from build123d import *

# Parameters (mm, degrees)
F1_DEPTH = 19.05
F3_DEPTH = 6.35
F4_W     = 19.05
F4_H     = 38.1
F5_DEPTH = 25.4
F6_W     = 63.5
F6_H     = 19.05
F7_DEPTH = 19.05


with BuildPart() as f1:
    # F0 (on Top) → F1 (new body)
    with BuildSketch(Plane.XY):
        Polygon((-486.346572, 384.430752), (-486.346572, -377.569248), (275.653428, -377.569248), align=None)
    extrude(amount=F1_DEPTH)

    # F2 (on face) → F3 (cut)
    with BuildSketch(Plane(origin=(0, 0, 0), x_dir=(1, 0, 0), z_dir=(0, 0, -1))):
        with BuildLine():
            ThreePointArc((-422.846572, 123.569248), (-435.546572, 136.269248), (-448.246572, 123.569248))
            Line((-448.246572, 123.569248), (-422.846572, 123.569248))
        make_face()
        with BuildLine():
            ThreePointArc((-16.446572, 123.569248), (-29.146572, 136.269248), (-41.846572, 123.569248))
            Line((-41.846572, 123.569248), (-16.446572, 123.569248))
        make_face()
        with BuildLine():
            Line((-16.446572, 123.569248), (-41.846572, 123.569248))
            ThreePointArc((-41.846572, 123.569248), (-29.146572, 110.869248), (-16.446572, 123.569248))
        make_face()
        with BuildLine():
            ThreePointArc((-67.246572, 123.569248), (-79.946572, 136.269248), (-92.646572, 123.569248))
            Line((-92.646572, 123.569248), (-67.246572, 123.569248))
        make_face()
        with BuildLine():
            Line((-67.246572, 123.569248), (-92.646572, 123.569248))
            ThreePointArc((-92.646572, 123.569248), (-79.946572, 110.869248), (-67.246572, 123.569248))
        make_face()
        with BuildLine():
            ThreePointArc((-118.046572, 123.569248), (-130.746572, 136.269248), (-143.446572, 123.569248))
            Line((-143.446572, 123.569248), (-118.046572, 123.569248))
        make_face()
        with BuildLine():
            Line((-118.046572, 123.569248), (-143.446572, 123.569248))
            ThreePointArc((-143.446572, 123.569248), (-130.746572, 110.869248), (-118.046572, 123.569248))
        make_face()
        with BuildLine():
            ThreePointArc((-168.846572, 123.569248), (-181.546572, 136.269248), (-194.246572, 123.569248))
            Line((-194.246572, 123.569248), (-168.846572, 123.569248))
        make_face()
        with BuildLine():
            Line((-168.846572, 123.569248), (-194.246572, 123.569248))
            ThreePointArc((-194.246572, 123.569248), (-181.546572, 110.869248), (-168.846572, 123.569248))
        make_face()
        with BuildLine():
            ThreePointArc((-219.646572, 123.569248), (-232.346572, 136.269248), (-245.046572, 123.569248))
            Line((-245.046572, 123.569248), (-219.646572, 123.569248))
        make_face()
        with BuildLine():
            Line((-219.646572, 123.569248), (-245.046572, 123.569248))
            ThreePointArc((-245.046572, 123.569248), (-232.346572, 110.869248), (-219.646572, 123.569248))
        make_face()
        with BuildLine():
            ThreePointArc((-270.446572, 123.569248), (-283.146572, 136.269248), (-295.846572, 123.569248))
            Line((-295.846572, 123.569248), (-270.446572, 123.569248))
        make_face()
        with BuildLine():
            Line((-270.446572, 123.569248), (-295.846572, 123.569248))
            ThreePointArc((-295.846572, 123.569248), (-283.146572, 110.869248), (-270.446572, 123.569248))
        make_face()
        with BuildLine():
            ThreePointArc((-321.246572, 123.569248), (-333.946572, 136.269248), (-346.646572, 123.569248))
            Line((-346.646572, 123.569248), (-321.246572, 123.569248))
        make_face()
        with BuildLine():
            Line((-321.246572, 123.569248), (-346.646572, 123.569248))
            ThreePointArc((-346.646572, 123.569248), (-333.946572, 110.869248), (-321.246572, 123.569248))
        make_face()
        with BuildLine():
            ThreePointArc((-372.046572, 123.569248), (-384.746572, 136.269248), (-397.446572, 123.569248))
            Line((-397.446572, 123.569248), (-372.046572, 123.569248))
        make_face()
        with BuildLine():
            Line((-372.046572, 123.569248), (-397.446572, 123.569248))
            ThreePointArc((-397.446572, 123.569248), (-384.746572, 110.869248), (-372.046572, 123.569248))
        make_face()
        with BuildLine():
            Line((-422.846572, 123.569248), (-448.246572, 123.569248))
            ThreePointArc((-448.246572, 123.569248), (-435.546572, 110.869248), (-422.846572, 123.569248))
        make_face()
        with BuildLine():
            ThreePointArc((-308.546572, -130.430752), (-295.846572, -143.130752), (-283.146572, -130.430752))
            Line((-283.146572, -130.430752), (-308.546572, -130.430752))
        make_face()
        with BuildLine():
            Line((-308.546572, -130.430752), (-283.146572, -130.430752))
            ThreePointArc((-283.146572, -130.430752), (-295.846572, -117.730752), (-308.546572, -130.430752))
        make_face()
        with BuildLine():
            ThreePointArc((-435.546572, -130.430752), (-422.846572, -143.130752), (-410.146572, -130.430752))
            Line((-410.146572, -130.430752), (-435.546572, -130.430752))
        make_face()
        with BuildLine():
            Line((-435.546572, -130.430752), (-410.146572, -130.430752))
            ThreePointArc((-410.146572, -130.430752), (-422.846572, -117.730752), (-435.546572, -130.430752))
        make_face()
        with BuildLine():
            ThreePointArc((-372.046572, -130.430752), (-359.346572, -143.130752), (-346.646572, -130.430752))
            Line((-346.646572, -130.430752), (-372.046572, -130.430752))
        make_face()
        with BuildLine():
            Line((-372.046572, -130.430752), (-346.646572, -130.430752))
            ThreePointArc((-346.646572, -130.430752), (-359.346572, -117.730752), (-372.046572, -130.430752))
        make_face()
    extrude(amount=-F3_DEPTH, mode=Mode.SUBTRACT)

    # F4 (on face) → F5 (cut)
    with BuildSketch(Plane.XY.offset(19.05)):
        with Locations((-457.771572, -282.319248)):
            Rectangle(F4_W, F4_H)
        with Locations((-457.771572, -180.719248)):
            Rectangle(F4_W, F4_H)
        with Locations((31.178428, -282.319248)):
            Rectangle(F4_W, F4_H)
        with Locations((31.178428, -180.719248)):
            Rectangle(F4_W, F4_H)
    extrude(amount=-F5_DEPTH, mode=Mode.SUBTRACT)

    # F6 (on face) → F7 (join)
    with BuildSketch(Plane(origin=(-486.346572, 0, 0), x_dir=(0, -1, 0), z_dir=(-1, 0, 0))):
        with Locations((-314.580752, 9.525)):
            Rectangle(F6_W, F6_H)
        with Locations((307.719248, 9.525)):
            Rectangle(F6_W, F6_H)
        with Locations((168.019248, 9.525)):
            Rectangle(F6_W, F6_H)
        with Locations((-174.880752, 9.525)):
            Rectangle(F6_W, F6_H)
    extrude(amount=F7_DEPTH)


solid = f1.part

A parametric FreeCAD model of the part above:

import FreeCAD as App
import Part
import Sketcher
from FreeCAD import Vector
Q = App.Units.Quantity

doc = App.newDocument("Part")
body = doc.addObject("PartDesign::Body", "Body")

# Sketch on XY plane
sketch1 = body.newObject("Sketcher::SketchObject", "Sketch")
sketch1.AttachmentSupport = (doc.getObject("XY_Plane"), [""])
sketch1.MapMode = "FlatFace"
sketch1.addGeometry([
    Part.LineSegment(Vector(-486, 384, 0), Vector(-486, -378, 0)),
    Part.LineSegment(Vector(-486, -378, 0), Vector(276, -378, 0)),
    Part.LineSegment(Vector(276, -378, 0), Vector(-486, 384, 0)),
], False)
sketch1.addConstraint([
    Sketcher.Constraint("Coincident", 0, 2, 1, 1),
    Sketcher.Constraint("Coincident", 1, 2, 2, 1),
    Sketcher.Constraint("Coincident", 2, 2, 0, 1),
    Sketcher.Constraint("Vertical", 0),
    Sketcher.Constraint("Horizontal", 1),
    Sketcher.Constraint("Equal", 1, 0),
    Sketcher.Constraint("DistanceX", 1, 1, 1, 2, Q("30 in")),
    Sketcher.Constraint("DistanceX", 0, 2, -1, 1, 486.346572),
    Sketcher.Constraint("DistanceY", 0, 2, -1, 1, 377.569248),
])
pad1 = body.newObject("PartDesign::Pad", "Pad")
pad1.Profile = sketch1
pad1.Length = Q("0.75 in")

# Sketch on XY plane
sketch2 = body.newObject("Sketcher::SketchObject", "Sketch001")
sketch2.AttachmentSupport = (doc.getObject("XY_Plane"), [""])
sketch2.MapMode = "FlatFace"
sketch2.addGeometry([
    Part.Circle(Vector(-436, -124, 0), Vector(0, 0, 1), 13),  # 0
    Part.Circle(Vector(-29, -124, 0), Vector(0, 0, 1), 13),  # 1
    Part.Circle(Vector(-80, -124, 0), Vector(0, 0, 1), 13),  # 2
    Part.Circle(Vector(-131, -124, 0), Vector(0, 0, 1), 13),  # 3
    Part.Circle(Vector(-182, -124, 0), Vector(0, 0, 1), 13),  # 4
    Part.Circle(Vector(-232, -124, 0), Vector(0, 0, 1), 13),  # 5
    Part.Circle(Vector(-283, -124, 0), Vector(0, 0, 1), 13),  # 6
    Part.Circle(Vector(-334, -124, 0), Vector(0, 0, 1), 13),  # 7
    Part.Circle(Vector(-385, -124, 0), Vector(0, 0, 1), 13),  # 8
    Part.Circle(Vector(-296, 130, 0), Vector(0, 0, 1), 13),  # 9
    Part.Circle(Vector(-423, 130, 0), Vector(0, 0, 1), 13),  # 10
    Part.Circle(Vector(-359, 130, 0), Vector(0, 0, 1), 13),  # 11
], False)
sketch2.addConstraint([
    Sketcher.Constraint("Equal", 0, 1),
    Sketcher.Constraint("Equal", 1, 2),
    Sketcher.Constraint("Equal", 2, 3),
    Sketcher.Constraint("Equal", 3, 4),
    Sketcher.Constraint("Equal", 4, 5),
    Sketcher.Constraint("Equal", 5, 6),
    Sketcher.Constraint("Equal", 6, 7),
    Sketcher.Constraint("Equal", 7, 8),
    Sketcher.Constraint("Equal", 8, 9),
    Sketcher.Constraint("Equal", 9, 10),
    Sketcher.Constraint("Equal", 10, 11),
    Sketcher.Constraint("Horizontal", 0, 3, 1, 3),
    Sketcher.Constraint("Horizontal", 1, 3, 2, 3),
    Sketcher.Constraint("Horizontal", 2, 3, 3, 3),
    Sketcher.Constraint("Horizontal", 3, 3, 4, 3),
    Sketcher.Constraint("Horizontal", 4, 3, 5, 3),
    Sketcher.Constraint("Horizontal", 5, 3, 6, 3),
    Sketcher.Constraint("Horizontal", 6, 3, 7, 3),
    Sketcher.Constraint("Horizontal", 7, 3, 8, 3),
    Sketcher.Constraint("Horizontal", 9, 3, 10, 3),
    Sketcher.Constraint("Horizontal", 10, 3, 11, 3),
    Sketcher.Constraint("Diameter", 0, Q("1 in")),
    Sketcher.Constraint("DistanceX", 0, 3, 1, 3, Q("16 in")),
    Sketcher.Constraint("DistanceX", 2, 3, 1, 3, Q("2 in")),
    Sketcher.Constraint("DistanceX", 3, 3, 2, 3, Q("2 in")),
    Sketcher.Constraint("DistanceX", 4, 3, 3, 3, Q("2 in")),
    Sketcher.Constraint("DistanceX", 5, 3, 4, 3, Q("2 in")),
    Sketcher.Constraint("DistanceX", 6, 3, 5, 3, Q("2 in")),
    Sketcher.Constraint("DistanceX", 7, 3, 6, 3, Q("2 in")),
    Sketcher.Constraint("DistanceX", 0, 3, 8, 3, Q("2 in")),
    Sketcher.Constraint("DistanceY", 6, 3, 9, 3, Q("10 in")),
    Sketcher.Constraint("DistanceX", 10, 3, 9, 3, Q("5 in")),
    Sketcher.Constraint("DistanceX", 11, 3, 7, 3, Q("1 in")),
    Sketcher.Constraint("DistanceX", 9, 3, 6, 3, Q("0.5 in")),
    Sketcher.Constraint("DistanceY", 0, 3, -1, 1, 123.569248),
    Sketcher.Constraint("DistanceX", 1, 3, -1, 1, 29.146572),
])
pocket1 = body.newObject("PartDesign::Pocket", "Pocket")
pocket1.Profile = sketch2
pocket1.Length = Q("0.25 in")
pocket1.Reversed = True

# Sketch on XY plane
sketch3 = body.newObject("Sketcher::SketchObject", "Sketch002")
sketch3.AttachmentSupport = (doc.getObject("XY_Plane"), [""])
sketch3.MapMode = "FlatFace"
sketch3.AttachmentOffset = App.Placement(Vector(0, 0, 0.75 * 25.4), App.Rotation())
sketch3.addGeometry([
    Part.LineSegment(Vector(-467, -263, 0), Vector(-467, -301, 0)),  # 0
    Part.LineSegment(Vector(-467, -301, 0), Vector(-448, -301, 0)),  # 1
    Part.LineSegment(Vector(-448, -301, 0), Vector(-448, -263, 0)),  # 2
    Part.LineSegment(Vector(-448, -263, 0), Vector(-467, -263, 0)),  # 3
    Part.LineSegment(Vector(-467, -162, 0), Vector(-467, -200, 0)),  # 4
    Part.LineSegment(Vector(-467, -200, 0), Vector(-448, -200, 0)),  # 5
    Part.LineSegment(Vector(-448, -200, 0), Vector(-448, -162, 0)),  # 6
    Part.LineSegment(Vector(-448, -162, 0), Vector(-467, -162, 0)),  # 7
    Part.LineSegment(Vector(22, -263, 0), Vector(22, -301, 0)),  # 8
    Part.LineSegment(Vector(22, -301, 0), Vector(41, -301, 0)),  # 9
    Part.LineSegment(Vector(41, -301, 0), Vector(41, -263, 0)),  # 10
    Part.LineSegment(Vector(41, -263, 0), Vector(22, -263, 0)),  # 11
    Part.LineSegment(Vector(22, -162, 0), Vector(22, -200, 0)),  # 12
    Part.LineSegment(Vector(22, -200, 0), Vector(41, -200, 0)),  # 13
    Part.LineSegment(Vector(41, -200, 0), Vector(41, -162, 0)),  # 14
    Part.LineSegment(Vector(41, -162, 0), Vector(22, -162, 0)),  # 15
], False)
sketch3.addConstraint([
    Sketcher.Constraint("Coincident", 0, 2, 1, 1),
    Sketcher.Constraint("Coincident", 1, 2, 2, 1),
    Sketcher.Constraint("Coincident", 2, 2, 3, 1),
    Sketcher.Constraint("Coincident", 3, 2, 0, 1),
    Sketcher.Constraint("Coincident", 4, 2, 5, 1),
    Sketcher.Constraint("Coincident", 5, 2, 6, 1),
    Sketcher.Constraint("Coincident", 6, 2, 7, 1),
    Sketcher.Constraint("Coincident", 7, 2, 4, 1),
    Sketcher.Constraint("Coincident", 8, 2, 9, 1),
    Sketcher.Constraint("Coincident", 9, 2, 10, 1),
    Sketcher.Constraint("Coincident", 10, 2, 11, 1),
    Sketcher.Constraint("Coincident", 11, 2, 8, 1),
    Sketcher.Constraint("Coincident", 12, 2, 13, 1),
    Sketcher.Constraint("Coincident", 13, 2, 14, 1),
    Sketcher.Constraint("Coincident", 14, 2, 15, 1),
    Sketcher.Constraint("Coincident", 15, 2, 12, 1),
    Sketcher.Constraint("Vertical", 0),
    Sketcher.Constraint("Horizontal", 1),
    Sketcher.Constraint("Vertical", 2),
    Sketcher.Constraint("Horizontal", 3),
    Sketcher.Constraint("Vertical", 4),
    Sketcher.Constraint("Horizontal", 5),
    Sketcher.Constraint("Vertical", 6),
    Sketcher.Constraint("Horizontal", 7),
    Sketcher.Constraint("Vertical", 8),
    Sketcher.Constraint("Horizontal", 9),
    Sketcher.Constraint("Vertical", 10),
    Sketcher.Constraint("Horizontal", 11),
    Sketcher.Constraint("Vertical", 12),
    Sketcher.Constraint("Horizontal", 13),
    Sketcher.Constraint("Vertical", 14),
    Sketcher.Constraint("Horizontal", 15),
    Sketcher.Constraint("Horizontal", 1, 2, 8, 2),
    Sketcher.Constraint("Horizontal", 3, 2, 10, 2),
    Sketcher.Constraint("Horizontal", 5, 2, 12, 2),
    Sketcher.Constraint("Horizontal", 7, 2, 14, 2),
    Sketcher.Constraint("Vertical", 3, 2, 4, 2),
    Sketcher.Constraint("Vertical", 2, 2, 5, 2),
    Sketcher.Constraint("Vertical", 11, 2, 12, 2),
    Sketcher.Constraint("Vertical", 10, 2, 13, 2),
    Sketcher.Constraint("Equal", 7, 9),
    Sketcher.Constraint("Equal", 2, 4),
    Sketcher.Constraint("DistanceY", 0, 2, 0, 1, Q("1.5 in")),
    Sketcher.Constraint("DistanceY", 0, 2, 4, 2, Q("4 in")),
    Sketcher.Constraint("DistanceX", 0, 2, 9, 2, Q("20 in")),
    Sketcher.Constraint("DistanceX", 1, 1, 1, 2, Q("0.75 in")),
    Sketcher.Constraint("DistanceY", 0, 2, -1, 1, 301.369248),
    Sketcher.Constraint("DistanceX", 1, 2, -1, 1, 448.246572),
])
pocket2 = body.newObject("PartDesign::Pocket", "Pocket001")
pocket2.Profile = sketch3
pocket2.Length = Q("1 in")

# Sketch on YZ plane
sketch4 = body.newObject("Sketcher::SketchObject", "Sketch003")
sketch4.AttachmentSupport = (doc.getObject("YZ_Plane"), [""])
sketch4.MapMode = "FlatFace"
sketch4.AttachmentOffset = App.Placement(Vector(0, 0, -486.346572), App.Rotation())
sketch4.addGeometry([
    Part.LineSegment(Vector(346, 19, 0), Vector(346, 0, 0)),  # 0
    Part.LineSegment(Vector(346, 0, 0), Vector(283, 0, 0)),  # 1
    Part.LineSegment(Vector(283, 0, 0), Vector(283, 19, 0)),  # 2
    Part.LineSegment(Vector(283, 19, 0), Vector(346, 19, 0)),  # 3
    Part.LineSegment(Vector(-276, 19, 0), Vector(-276, 0, 0)),  # 4
    Part.LineSegment(Vector(-276, 0, 0), Vector(-339, 0, 0)),  # 5
    Part.LineSegment(Vector(-339, 0, 0), Vector(-339, 19, 0)),  # 6
    Part.LineSegment(Vector(-339, 19, 0), Vector(-276, 19, 0)),  # 7
    Part.LineSegment(Vector(-136, 19, 0), Vector(-136, 0, 0)),  # 8
    Part.LineSegment(Vector(-136, 0, 0), Vector(-200, 0, 0)),  # 9
    Part.LineSegment(Vector(-200, 0, 0), Vector(-200, 19, 0)),  # 10
    Part.LineSegment(Vector(-200, 19, 0), Vector(-136, 19, 0)),  # 11
    Part.LineSegment(Vector(207, 19, 0), Vector(207, 0, 0)),  # 12
    Part.LineSegment(Vector(207, 0, 0), Vector(143, 0, 0)),  # 13
    Part.LineSegment(Vector(143, 0, 0), Vector(143, 19, 0)),  # 14
    Part.LineSegment(Vector(143, 19, 0), Vector(207, 19, 0)),  # 15
], False)
sketch4.addConstraint([
    Sketcher.Constraint("Coincident", 0, 2, 1, 1),
    Sketcher.Constraint("Coincident", 1, 2, 2, 1),
    Sketcher.Constraint("Coincident", 2, 2, 3, 1),
    Sketcher.Constraint("Coincident", 3, 2, 0, 1),
    Sketcher.Constraint("Coincident", 4, 2, 5, 1),
    Sketcher.Constraint("Coincident", 5, 2, 6, 1),
    Sketcher.Constraint("Coincident", 6, 2, 7, 1),
    Sketcher.Constraint("Coincident", 7, 2, 4, 1),
    Sketcher.Constraint("Coincident", 8, 2, 9, 1),
    Sketcher.Constraint("Coincident", 9, 2, 10, 1),
    Sketcher.Constraint("Coincident", 10, 2, 11, 1),
    Sketcher.Constraint("Coincident", 11, 2, 8, 1),
    Sketcher.Constraint("Coincident", 12, 2, 13, 1),
    Sketcher.Constraint("Coincident", 13, 2, 14, 1),
    Sketcher.Constraint("Coincident", 14, 2, 15, 1),
    Sketcher.Constraint("Coincident", 15, 2, 12, 1),
    Sketcher.Constraint("Vertical", 0),
    Sketcher.Constraint("Horizontal", 1),
    Sketcher.Constraint("Vertical", 2),
    Sketcher.Constraint("Horizontal", 3),
    Sketcher.Constraint("Vertical", 4),
    Sketcher.Constraint("Horizontal", 5),
    Sketcher.Constraint("Vertical", 6),
    Sketcher.Constraint("Horizontal", 7),
    Sketcher.Constraint("Vertical", 8),
    Sketcher.Constraint("Horizontal", 9),
    Sketcher.Constraint("Vertical", 10),
    Sketcher.Constraint("Horizontal", 11),
    Sketcher.Constraint("Vertical", 12),
    Sketcher.Constraint("Horizontal", 13),
    Sketcher.Constraint("Vertical", 14),
    Sketcher.Constraint("Horizontal", 15),
    Sketcher.Constraint("PointOnObject", 0, 2, -1),
    Sketcher.Constraint("PointOnObject", 4, 2, -1),
    Sketcher.Constraint("PointOnObject", 8, 2, -1),
    Sketcher.Constraint("PointOnObject", 12, 2, -1),
    Sketcher.Constraint("Horizontal", 3, 2, 6, 2),
    Sketcher.Constraint("Horizontal", 7, 2, 10, 2),
    Sketcher.Constraint("Horizontal", 11, 2, 14, 2),
    Sketcher.Constraint("Equal", 3, 5),
    Sketcher.Constraint("Equal", 7, 9),
    Sketcher.Constraint("Equal", 11, 13),
    Sketcher.Constraint("DistanceX", 1, 2, 1, 1, Q("2.5 in")),
    Sketcher.Constraint("DistanceX", 4, 2, 1, 2, Q("22 in")),
    Sketcher.Constraint("DistanceX", 5, 2, 8, 2, Q("8 in")),
    Sketcher.Constraint("DistanceX", 12, 2, 1, 2, Q("3 in")),
    Sketcher.Constraint("DistanceY", 0, 2, 0, 1, Q("0.75 in")),
    Sketcher.Constraint("DistanceX", -1, 1, 0, 2, 346.330752),
])
pad2 = body.newObject("PartDesign::Pad", "Pad001")
pad2.Profile = sketch4
pad2.Length = Q("0.75 in")
pad2.Reversed = True

doc.recompute()
